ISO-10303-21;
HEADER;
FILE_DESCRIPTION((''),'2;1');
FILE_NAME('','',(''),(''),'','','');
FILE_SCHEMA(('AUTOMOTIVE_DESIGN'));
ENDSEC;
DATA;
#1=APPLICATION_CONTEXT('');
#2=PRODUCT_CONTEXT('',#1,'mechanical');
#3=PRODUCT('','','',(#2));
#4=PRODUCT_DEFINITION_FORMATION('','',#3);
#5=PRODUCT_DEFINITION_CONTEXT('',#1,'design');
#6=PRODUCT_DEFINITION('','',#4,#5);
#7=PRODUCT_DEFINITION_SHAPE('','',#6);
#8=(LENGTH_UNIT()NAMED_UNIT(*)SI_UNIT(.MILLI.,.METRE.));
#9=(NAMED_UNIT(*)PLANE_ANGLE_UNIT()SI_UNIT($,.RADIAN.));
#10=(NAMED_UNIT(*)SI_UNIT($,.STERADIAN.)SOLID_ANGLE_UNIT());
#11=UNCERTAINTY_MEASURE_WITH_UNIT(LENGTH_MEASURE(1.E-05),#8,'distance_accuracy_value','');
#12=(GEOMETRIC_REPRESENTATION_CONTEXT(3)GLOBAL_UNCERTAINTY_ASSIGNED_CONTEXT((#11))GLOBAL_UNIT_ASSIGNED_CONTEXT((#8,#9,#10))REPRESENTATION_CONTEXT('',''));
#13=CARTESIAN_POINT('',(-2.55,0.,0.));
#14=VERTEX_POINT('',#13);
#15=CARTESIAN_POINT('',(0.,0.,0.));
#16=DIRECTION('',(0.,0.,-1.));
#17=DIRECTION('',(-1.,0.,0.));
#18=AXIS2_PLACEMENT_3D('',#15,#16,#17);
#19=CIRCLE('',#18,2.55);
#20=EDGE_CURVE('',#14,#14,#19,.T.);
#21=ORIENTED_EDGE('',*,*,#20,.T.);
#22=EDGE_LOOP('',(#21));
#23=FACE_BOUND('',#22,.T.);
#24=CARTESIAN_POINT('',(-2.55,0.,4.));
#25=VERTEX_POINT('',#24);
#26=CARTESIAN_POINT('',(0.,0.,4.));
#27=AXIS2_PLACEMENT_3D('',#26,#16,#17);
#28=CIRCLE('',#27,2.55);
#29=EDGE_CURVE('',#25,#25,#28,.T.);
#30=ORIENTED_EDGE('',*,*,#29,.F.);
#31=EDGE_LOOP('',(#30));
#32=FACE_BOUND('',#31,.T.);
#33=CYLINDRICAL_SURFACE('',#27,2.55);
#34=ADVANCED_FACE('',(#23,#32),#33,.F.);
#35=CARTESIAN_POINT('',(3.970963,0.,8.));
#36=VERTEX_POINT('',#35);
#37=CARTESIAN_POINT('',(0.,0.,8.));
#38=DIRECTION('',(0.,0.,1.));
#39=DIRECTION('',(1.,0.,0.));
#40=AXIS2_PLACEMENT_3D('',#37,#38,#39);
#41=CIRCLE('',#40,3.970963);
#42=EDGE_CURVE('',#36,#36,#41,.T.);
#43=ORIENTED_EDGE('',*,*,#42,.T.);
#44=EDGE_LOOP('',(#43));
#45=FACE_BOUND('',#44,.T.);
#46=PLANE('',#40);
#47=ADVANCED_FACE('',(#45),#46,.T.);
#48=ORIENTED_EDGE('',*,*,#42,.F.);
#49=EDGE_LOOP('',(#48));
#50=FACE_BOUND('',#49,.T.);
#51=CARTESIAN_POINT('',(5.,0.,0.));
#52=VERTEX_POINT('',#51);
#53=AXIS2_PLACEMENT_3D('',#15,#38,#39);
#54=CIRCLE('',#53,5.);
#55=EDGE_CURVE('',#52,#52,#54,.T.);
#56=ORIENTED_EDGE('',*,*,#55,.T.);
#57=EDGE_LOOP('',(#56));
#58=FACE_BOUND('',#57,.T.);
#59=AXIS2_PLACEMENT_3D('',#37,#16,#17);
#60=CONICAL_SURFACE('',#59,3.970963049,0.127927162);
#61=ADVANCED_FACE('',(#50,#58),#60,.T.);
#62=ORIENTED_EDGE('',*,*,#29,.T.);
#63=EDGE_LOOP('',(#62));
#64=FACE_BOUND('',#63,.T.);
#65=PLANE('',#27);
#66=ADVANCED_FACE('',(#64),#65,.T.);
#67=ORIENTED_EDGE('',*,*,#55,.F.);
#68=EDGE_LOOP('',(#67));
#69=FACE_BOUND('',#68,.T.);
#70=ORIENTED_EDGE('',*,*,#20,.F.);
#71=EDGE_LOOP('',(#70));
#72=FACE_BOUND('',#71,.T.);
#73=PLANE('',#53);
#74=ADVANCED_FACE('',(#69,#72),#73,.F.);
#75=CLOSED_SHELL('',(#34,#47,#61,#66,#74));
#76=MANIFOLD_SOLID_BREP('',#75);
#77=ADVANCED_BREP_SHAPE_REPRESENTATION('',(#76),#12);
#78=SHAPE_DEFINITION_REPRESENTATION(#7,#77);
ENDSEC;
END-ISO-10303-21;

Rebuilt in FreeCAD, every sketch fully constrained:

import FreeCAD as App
import Part
import Sketcher

V = App.Vector
Q = App.Units.Quantity

doc = App.newDocument("Part")
body = doc.addObject("PartDesign::Body", "Body")

# Sketch on XY plane
sketch1 = body.newObject("Sketcher::SketchObject", "Sketch")
sketch1.AttachmentSupport = (doc.getObject("XY_Plane"), [""])
sketch1.MapMode = "FlatFace"
sketch1.addGeometry(Part.Circle(V(0, 0, 0), V(0, 0, 1), 5), False)
sketch1.addConstraint([
    Sketcher.Constraint("Coincident", 0, 3, -1, 1),
    Sketcher.Constraint("Diameter", 0, Q("10 mm")),
])
pad1 = body.newObject("PartDesign::Pad", "Pad")
pad1.Profile = sketch1
pad1.Length = 8

# Sketch on YZ plane
sketch2 = body.newObject("Sketcher::SketchObject", "Sketch001")
sketch2.AttachmentSupport = (doc.getObject("YZ_Plane"), [""])
sketch2.MapMode = "FlatFace"
sketch2.addGeometry([
    Part.LineSegment(V(4, 8, 0), V(5, 0, 0)),
    Part.LineSegment(V(5, 0, 0), V(5, 8, 0)),
    Part.LineSegment(V(5, 8, 0), V(4, 8, 0)),
], False)
sketch2.addConstraint([
    Sketcher.Constraint("Coincident", 0, 2, 1, 1),
    Sketcher.Constraint("Coincident", 1, 2, 2, 1),
    Sketcher.Constraint("Coincident", 2, 2, 0, 1),
    Sketcher.Constraint("Vertical", 1),
    Sketcher.Constraint("Horizontal", 2),
    Sketcher.Constraint("PointOnObject", 0, 2, -1),
    Sketcher.Constraint("DistanceY", 1, 1, 1, 2, Q("8 mm")),
    Sketcher.Constraint("DistanceX", -1, 1, 0, 2, Q("5 mm")),
    Sketcher.Constraint("Distance", 0, Q("8.065911 mm")),
])
groove = body.newObject("PartDesign::Groove", "Groove")
groove.Profile = sketch2
groove.ReferenceAxis = (sketch2, ["V_Axis"])
groove.Angle = 360

# Sketch on XY plane
sketch3 = body.newObject("Sketcher::SketchObject", "Sketch002")
sketch3.AttachmentSupport = (doc.getObject("XY_Plane"), [""])
sketch3.MapMode = "FlatFace"
sketch3.addGeometry(Part.Circle(V(0, 0, 0), V(0, 0, 1), 2.5), False)
sketch3.addConstraint([
    Sketcher.Constraint("Coincident", 0, 3, -1, 1),
    Sketcher.Constraint("Diameter", 0, Q("5.1 mm")),
])
pocket1 = body.newObject("PartDesign::Pocket", "Pocket")
pocket1.Profile = sketch3
pocket1.Length = 4
pocket1.Reversed = True

doc.recompute()
